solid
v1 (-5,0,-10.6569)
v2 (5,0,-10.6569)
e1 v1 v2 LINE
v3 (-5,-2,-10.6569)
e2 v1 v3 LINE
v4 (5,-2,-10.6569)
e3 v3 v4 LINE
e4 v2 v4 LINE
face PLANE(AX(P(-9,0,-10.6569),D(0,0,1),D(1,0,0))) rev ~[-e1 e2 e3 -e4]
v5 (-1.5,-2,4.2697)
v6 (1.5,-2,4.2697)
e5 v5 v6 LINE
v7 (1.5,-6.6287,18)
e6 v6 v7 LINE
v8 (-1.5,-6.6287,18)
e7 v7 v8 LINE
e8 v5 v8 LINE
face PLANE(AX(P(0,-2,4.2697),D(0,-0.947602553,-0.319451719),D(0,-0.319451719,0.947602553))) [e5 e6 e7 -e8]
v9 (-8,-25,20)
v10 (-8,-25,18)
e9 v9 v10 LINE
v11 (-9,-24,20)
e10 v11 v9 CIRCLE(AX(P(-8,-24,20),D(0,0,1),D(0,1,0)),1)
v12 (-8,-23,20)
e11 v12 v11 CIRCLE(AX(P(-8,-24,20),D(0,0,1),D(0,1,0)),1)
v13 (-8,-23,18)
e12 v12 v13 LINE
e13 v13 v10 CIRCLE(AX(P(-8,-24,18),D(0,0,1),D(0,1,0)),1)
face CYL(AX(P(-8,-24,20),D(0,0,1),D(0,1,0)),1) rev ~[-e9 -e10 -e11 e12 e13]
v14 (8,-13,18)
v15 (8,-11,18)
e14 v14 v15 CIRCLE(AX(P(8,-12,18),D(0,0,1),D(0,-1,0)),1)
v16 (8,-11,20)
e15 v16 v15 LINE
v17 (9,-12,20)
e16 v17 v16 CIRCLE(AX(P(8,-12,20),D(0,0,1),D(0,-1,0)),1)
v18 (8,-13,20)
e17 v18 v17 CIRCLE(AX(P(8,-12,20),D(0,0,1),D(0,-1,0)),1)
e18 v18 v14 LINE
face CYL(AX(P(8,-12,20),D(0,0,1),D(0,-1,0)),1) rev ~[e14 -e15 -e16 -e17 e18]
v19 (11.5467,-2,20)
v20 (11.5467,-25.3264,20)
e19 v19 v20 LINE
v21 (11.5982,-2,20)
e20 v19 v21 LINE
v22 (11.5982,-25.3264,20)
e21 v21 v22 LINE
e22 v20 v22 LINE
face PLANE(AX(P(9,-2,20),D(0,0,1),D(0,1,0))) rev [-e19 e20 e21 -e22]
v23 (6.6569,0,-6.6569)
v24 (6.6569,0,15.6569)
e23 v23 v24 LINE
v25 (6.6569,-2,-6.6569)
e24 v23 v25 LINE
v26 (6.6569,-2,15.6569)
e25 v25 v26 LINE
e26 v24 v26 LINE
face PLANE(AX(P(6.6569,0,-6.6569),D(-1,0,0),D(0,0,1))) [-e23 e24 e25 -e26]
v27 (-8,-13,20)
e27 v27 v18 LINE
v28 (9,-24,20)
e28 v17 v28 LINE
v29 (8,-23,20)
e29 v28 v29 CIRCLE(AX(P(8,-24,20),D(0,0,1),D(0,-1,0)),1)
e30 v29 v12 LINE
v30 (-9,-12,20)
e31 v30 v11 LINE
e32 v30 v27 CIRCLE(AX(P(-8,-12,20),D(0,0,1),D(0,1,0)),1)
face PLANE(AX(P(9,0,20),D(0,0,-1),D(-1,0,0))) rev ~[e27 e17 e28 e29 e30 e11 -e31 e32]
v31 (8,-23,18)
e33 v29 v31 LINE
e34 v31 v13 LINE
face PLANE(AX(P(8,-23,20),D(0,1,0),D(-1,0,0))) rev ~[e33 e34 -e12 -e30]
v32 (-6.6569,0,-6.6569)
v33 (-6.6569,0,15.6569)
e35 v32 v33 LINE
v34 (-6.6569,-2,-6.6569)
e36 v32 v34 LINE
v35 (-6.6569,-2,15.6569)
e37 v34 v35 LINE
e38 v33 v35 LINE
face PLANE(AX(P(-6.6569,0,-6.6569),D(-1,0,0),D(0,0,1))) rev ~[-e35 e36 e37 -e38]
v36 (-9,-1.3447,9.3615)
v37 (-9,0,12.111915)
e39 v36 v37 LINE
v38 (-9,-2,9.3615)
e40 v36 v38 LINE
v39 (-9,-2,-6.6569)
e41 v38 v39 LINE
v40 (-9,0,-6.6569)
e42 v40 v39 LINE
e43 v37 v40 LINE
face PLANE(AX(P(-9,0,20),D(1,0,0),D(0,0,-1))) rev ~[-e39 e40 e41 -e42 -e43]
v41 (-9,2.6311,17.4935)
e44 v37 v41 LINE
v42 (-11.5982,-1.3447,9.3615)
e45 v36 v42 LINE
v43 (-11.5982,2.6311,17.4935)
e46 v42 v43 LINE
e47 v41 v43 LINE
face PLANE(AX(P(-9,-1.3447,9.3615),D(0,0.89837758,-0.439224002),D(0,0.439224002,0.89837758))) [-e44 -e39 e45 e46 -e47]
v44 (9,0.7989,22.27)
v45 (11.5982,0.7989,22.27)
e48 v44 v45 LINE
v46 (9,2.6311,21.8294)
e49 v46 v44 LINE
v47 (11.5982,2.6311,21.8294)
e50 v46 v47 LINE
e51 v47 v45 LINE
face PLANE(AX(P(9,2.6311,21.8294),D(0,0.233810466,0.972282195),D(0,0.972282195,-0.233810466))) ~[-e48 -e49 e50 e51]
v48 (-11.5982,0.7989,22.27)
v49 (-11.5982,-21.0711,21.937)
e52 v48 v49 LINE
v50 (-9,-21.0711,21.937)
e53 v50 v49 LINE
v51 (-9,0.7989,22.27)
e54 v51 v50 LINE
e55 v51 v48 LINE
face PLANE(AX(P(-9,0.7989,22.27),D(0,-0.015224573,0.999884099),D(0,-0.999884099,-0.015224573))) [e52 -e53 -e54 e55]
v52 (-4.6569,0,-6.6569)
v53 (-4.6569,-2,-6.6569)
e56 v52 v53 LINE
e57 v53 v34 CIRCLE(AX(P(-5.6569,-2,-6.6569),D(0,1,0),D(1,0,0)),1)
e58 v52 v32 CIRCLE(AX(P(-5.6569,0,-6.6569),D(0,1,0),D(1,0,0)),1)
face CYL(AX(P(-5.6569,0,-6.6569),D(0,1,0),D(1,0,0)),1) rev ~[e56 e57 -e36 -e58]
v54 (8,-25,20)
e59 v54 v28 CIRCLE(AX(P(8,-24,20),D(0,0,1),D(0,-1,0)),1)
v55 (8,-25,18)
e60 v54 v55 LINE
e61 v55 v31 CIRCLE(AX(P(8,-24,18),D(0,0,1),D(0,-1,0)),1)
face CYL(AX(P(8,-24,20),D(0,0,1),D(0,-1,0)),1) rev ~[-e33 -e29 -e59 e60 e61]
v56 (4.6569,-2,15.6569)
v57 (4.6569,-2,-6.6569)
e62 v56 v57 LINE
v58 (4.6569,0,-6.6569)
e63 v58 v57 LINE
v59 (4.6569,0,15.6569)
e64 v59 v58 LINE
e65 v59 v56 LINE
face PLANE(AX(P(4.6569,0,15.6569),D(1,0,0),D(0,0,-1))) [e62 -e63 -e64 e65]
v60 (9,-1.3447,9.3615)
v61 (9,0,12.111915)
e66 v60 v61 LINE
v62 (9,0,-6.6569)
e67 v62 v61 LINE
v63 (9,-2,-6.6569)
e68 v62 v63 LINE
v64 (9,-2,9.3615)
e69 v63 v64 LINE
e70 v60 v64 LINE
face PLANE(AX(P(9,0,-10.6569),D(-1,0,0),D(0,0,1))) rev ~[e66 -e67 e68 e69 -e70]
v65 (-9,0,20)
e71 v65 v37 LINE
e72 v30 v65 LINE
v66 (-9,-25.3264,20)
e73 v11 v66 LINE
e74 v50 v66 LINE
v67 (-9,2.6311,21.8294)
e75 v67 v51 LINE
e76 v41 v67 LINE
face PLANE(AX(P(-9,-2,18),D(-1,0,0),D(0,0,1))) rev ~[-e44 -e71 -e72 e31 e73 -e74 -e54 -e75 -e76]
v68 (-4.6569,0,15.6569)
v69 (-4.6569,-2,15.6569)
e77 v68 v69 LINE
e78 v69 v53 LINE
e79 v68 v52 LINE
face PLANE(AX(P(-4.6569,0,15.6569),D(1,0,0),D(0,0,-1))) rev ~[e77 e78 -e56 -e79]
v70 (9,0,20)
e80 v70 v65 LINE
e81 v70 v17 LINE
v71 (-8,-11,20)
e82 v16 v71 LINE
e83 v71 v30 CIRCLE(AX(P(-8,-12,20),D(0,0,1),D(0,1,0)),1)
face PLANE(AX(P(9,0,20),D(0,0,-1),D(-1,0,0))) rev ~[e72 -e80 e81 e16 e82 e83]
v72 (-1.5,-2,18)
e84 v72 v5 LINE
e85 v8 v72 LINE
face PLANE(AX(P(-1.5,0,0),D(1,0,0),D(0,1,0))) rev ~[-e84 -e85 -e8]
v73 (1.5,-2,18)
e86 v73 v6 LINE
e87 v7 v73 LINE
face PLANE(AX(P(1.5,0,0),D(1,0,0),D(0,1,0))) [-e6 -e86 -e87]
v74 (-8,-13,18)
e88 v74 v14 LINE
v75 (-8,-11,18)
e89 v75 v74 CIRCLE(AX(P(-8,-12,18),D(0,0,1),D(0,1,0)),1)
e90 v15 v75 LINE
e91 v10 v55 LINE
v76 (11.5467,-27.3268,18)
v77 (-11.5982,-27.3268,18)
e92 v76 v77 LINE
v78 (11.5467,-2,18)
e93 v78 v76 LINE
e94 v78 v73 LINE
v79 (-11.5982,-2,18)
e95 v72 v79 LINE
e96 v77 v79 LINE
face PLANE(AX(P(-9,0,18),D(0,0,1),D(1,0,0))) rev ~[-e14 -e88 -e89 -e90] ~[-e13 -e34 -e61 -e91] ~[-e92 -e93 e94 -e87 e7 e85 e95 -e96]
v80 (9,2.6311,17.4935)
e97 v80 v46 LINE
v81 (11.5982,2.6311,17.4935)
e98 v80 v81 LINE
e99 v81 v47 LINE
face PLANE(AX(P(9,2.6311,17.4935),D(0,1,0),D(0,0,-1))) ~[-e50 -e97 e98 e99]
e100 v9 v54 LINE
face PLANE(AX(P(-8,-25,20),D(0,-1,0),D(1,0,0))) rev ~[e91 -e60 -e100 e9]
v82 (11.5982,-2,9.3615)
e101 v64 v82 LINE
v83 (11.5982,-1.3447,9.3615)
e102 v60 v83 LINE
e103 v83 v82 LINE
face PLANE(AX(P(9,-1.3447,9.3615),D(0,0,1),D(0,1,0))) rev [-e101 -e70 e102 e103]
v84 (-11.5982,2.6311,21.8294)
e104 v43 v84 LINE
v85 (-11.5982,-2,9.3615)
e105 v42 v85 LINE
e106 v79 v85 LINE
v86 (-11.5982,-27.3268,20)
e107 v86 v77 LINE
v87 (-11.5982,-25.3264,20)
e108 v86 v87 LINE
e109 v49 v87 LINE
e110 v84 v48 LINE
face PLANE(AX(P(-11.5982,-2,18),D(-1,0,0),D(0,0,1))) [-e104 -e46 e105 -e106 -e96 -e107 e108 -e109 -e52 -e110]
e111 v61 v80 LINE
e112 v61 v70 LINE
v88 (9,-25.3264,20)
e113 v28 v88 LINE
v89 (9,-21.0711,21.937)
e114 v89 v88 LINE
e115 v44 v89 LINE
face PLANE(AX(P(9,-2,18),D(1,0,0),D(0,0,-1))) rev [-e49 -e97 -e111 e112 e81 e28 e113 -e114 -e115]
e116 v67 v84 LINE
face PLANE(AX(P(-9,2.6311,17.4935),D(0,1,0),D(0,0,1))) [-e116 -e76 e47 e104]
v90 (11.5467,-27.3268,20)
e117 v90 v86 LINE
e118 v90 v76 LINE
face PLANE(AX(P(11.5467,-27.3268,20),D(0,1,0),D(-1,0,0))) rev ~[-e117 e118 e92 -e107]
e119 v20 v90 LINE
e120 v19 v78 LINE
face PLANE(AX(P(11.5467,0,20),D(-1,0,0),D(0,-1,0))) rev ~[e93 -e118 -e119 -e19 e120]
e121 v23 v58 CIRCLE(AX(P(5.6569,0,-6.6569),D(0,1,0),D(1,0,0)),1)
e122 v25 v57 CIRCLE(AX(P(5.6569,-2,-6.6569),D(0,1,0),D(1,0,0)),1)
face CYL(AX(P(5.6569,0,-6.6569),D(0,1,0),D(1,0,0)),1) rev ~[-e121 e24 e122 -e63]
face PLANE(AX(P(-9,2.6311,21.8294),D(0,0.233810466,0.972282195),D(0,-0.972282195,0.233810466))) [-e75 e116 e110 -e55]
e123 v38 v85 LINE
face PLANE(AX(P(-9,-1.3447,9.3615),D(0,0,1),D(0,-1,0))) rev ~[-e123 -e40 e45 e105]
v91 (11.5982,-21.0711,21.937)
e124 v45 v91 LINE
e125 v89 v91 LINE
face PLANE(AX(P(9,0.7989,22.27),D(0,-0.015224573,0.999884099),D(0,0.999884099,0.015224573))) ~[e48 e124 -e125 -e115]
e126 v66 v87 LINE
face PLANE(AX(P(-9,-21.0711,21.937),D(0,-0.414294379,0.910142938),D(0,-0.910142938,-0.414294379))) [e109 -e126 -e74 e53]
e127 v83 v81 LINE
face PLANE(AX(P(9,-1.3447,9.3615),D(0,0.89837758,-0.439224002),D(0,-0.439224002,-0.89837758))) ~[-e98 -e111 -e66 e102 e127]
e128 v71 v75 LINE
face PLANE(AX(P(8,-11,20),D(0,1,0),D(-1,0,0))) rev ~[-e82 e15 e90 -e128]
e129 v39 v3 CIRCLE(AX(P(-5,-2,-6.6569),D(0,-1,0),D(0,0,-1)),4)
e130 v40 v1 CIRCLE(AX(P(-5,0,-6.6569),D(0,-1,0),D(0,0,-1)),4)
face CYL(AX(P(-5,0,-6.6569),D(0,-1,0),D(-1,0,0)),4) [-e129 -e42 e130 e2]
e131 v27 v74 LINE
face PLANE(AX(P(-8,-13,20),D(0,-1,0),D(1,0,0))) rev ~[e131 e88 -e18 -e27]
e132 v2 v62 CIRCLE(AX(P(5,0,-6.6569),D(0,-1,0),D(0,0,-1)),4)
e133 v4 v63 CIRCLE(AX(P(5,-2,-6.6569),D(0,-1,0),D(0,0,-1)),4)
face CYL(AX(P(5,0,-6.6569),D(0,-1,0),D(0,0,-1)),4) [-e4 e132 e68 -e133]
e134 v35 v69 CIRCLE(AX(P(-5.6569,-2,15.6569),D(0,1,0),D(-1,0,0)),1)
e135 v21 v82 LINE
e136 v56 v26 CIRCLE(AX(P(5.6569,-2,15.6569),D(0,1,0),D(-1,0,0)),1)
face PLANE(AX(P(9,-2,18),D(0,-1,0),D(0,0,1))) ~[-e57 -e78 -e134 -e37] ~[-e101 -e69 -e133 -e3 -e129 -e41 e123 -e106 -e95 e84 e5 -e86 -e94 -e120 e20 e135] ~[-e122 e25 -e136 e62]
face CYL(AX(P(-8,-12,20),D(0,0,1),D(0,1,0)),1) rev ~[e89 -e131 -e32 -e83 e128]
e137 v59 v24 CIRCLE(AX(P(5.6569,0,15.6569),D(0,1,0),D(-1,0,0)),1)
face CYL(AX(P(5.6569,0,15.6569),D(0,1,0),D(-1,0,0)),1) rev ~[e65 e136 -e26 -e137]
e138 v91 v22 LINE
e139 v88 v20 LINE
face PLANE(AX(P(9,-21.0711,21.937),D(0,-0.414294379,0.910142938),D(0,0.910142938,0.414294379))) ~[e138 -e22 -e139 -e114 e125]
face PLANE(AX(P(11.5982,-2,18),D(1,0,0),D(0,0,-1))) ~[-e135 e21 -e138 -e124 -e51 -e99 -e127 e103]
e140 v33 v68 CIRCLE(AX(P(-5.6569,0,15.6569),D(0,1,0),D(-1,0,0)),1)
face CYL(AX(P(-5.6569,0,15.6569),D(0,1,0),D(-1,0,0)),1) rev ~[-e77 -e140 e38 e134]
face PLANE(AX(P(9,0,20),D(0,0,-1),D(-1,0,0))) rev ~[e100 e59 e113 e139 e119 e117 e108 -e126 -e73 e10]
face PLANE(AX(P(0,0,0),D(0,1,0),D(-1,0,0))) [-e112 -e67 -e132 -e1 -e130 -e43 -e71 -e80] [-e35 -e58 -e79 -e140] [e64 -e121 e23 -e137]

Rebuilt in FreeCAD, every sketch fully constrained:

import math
import FreeCAD as App
import Part
import Sketcher
from FreeCAD import Vector
Q = App.Units.Quantity


def edges_at(feature, points):
    """Names of the edges that pass closest to the given points."""
    edges = feature.Shape.Edges
    near = lambda p: min(range(len(edges)), key=lambda i: edges[i].distToShape(Part.Vertex(*p))[0])
    return sorted({f"Edge{near(p) + 1}" for p in points})


def add_polygon(sketch, points):
    """Adds a closed chain of lines whose ends are joined by coincident constraints."""
    first, n = sketch.GeometryCount, len(points)
    for a, b in zip(points, points[1:] + points[:1]):
        sketch.addGeometry(Part.LineSegment(App.Vector(*a, 0), App.Vector(*b, 0)), False)
    for i in range(n):
        sketch.addConstraint(Sketcher.Constraint("Coincident", first + i, 2, first + (i + 1) % n, 1))

doc = App.newDocument("Part")
body = doc.addObject("PartDesign::Body", "Body")

# Sketch on XZ plane
sketch1 = body.newObject("Sketcher::SketchObject", "Sketch")
sketch1.AttachmentSupport = (doc.getObject("XZ_Plane"), [""])
sketch1.MapMode = "FlatFace"
add_polygon(sketch1, [(-9, 20), (9, 20), (9, -10.7), (-9, -10.7)])  # lines 0-3
sketch1.addGeometry(Part.ArcOfCircle(Part.Circle(Vector(5.7, -6.7, 0), Vector(0, 0, 1), 1), math.radians(180), math.radians(360)), False)  # 4
sketch1.addGeometry(Part.LineSegment(Vector(6.7, -6.7, 0), Vector(6.7, 15.7, 0)), False)  # 5
sketch1.addGeometry(Part.ArcOfCircle(Part.Circle(Vector(5.7, 15.7, 0), Vector(0, 0, 1), 1), math.radians(0), math.radians(180)), False)  # 6
sketch1.addGeometry(Part.LineSegment(Vector(4.7, 15.7, 0), Vector(4.7, -6.7, 0)), False)  # 7
sketch1.addGeometry(Part.LineSegment(Vector(-6.7, 15.7, 0), Vector(-6.7, -6.7, 0)), False)  # 8
sketch1.addGeometry(Part.ArcOfCircle(Part.Circle(Vector(-5.7, -6.7, 0), Vector(0, 0, 1), 1), math.radians(180), math.radians(360)), False)  # 9
sketch1.addGeometry(Part.LineSegment(Vector(-4.7, -6.7, 0), Vector(-4.7, 15.7, 0)), False)  # 10
sketch1.addGeometry(Part.ArcOfCircle(Part.Circle(Vector(-5.7, 15.7, 0), Vector(0, 0, 1), 1), math.radians(0), math.radians(180)), False)  # 11
sketch1.addConstraint([
    Sketcher.Constraint("Tangent", 4, 2, 5, 1),
    Sketcher.Constraint("Tangent", 5, 2, 6, 1),
    Sketcher.Constraint("Tangent", 6, 2, 7, 1),
    Sketcher.Constraint("Tangent", 7, 2, 4, 1),
    Sketcher.Constraint("Tangent", 8, 2, 9, 1),
    Sketcher.Constraint("Tangent", 9, 2, 10, 1),
    Sketcher.Constraint("Tangent", 10, 2, 11, 1),
    Sketcher.Constraint("Tangent", 11, 2, 8, 1),
    Sketcher.Constraint("Horizontal", 0),
    Sketcher.Constraint("Vertical", 1),
    Sketcher.Constraint("Horizontal", 2),
    Sketcher.Constraint("Vertical", 3),
    Sketcher.Constraint("Vertical", 5),
    Sketcher.Constraint("Vertical", 7),
    Sketcher.Constraint("Vertical", 8),
    Sketcher.Constraint("Vertical", 10),
    Sketcher.Constraint("Equal", 6, 9),
    Sketcher.Constraint("Symmetric", 4, 3, 9, 3, -2),
    Sketcher.Constraint("Horizontal", 6, 3, 11, 3),
    Sketcher.Constraint("Radius", 4, 1.0),
    Sketcher.Constraint("DistanceX", 0, 1, 0, 2, 18.0),
    Sketcher.Constraint("DistanceY", -1, 1, 0, 2, 20.0),
    Sketcher.Constraint("DistanceY", 1, 2, 4, 3, 4.0),
    Sketcher.Constraint("DistanceX", -1, 1, 0, 2, 9.0),
    Sketcher.Constraint("DistanceY", 1, 2, 1, 1, 30.657),
    Sketcher.Constraint("DistanceY", 5, 1, 5, 2, 22.3138),
    Sketcher.Constraint("DistanceX", -1, 1, 4, 3, 5.657),
])
pad1 = body.newObject("PartDesign::Pad", "Pad")
pad1.Profile = sketch1
pad1.Length = 2

# Sketch on XY plane
sketch2 = body.newObject("Sketcher::SketchObject", "Sketch001")
sketch2.AttachmentSupport = (doc.getObject("XY_Plane"), [""])
sketch2.MapMode = "FlatFace"
sketch2.AttachmentOffset = App.Placement(Vector(0, 0, 20), App.Rotation())
add_polygon(sketch2, [(11.5, 0), (-11.6, 0), (-11.6, -27.3), (11.5, -27.3)])  # lines 0-3
sketch2.addGeometry(Part.LineSegment(Vector(8, -25, 0), Vector(-8, -25, 0)), False)  # 4
sketch2.addGeometry(Part.ArcOfCircle(Part.Circle(Vector(-8, -24, 0), Vector(0, 0, 1), 1), math.radians(90), math.radians(270)), False)  # 5
sketch2.addGeometry(Part.LineSegment(Vector(-8, -23, 0), Vector(8, -23, 0)), False)  # 6
sketch2.addGeometry(Part.ArcOfCircle(Part.Circle(Vector(8, -24, 0), Vector(0, 0, 1), 1), math.radians(-90), math.radians(90)), False)  # 7
sketch2.addGeometry(Part.LineSegment(Vector(8, -13, 0), Vector(-8, -13, 0)), False)  # 8
sketch2.addGeometry(Part.ArcOfCircle(Part.Circle(Vector(-8, -12, 0), Vector(0, 0, 1), 1), math.radians(90), math.radians(270)), False)  # 9
sketch2.addGeometry(Part.LineSegment(Vector(-8, -11, 0), Vector(8, -11, 0)), False)  # 10
sketch2.addGeometry(Part.ArcOfCircle(Part.Circle(Vector(8, -12, 0), Vector(0, 0, 1), 1), math.radians(-90), math.radians(90)), False)  # 11
sketch2.addConstraint([
    Sketcher.Constraint("Tangent", 4, 2, 5, 2),
    Sketcher.Constraint("Tangent", 5, 1, 6, 1),
    Sketcher.Constraint("Tangent", 6, 2, 7, 2),
    Sketcher.Constraint("Tangent", 7, 1, 4, 1),
    Sketcher.Constraint("Tangent", 8, 2, 9, 2),
    Sketcher.Constraint("Tangent", 9, 1, 10, 1),
    Sketcher.Constraint("Tangent", 10, 2, 11, 2),
    Sketcher.Constraint("Tangent", 11, 1, 8, 1),
    Sketcher.Constraint("Horizontal", 0),
    Sketcher.Constraint("Vertical", 1),
    Sketcher.Constraint("Horizontal", 2),
    Sketcher.Constraint("Vertical", 3),
    Sketcher.Constraint("Horizontal", 4),
    Sketcher.Constraint("Horizontal", 6),
    Sketcher.Constraint("Horizontal", 8),
    Sketcher.Constraint("Horizontal", 10),
    Sketcher.Constraint("Equal", 7, 9),
    Sketcher.Constraint("PointOnObject", 0, 2, -1),
    Sketcher.Constraint("Vertical", 5, 3, 9, 3),
    Sketcher.Constraint("Vertical", 7, 3, 11, 3),
    Sketcher.Constraint("Radius", 5, 1.0),
    Sketcher.Constraint("DistanceX", 5, 3, -1, 1, 8.0),
    Sketcher.Constraint("DistanceX", -1, 1, 7, 3, 8.0),
    Sketcher.Constraint("DistanceY", 9, 3, -1, 1, 12.0),
    Sketcher.Constraint("DistanceY", 5, 3, 9, 3, 12.0),
    Sketcher.Constraint("DistanceX", 0, 2, 0, 1, 23.145),
    Sketcher.Constraint("DistanceY", 1, 2, 1, 1, 27.3268),
    Sketcher.Constraint("DistanceX", 0, 2, -1, 1, 11.5982),
])
pad2 = body.newObject("PartDesign::Pad", "Pad001")
pad2.Profile = sketch2
pad2.Length = 2
pad2.Reversed = True
doc.recompute()

fillet = body.newObject("PartDesign::Fillet", "Fillet")
fillet.Base = (pad2, edges_at(pad2, [(-9, -1, -10.657), (9, -1, -10.657)]))
fillet.Radius = 4

# Sketch on YZ plane
sketch3 = body.newObject("Sketcher::SketchObject", "Sketch002")
sketch3.AttachmentSupport = (doc.getObject("YZ_Plane"), [""])
sketch3.MapMode = "FlatFace"
add_polygon(sketch3, [(-6.6, 18), (-2, 4.3), (-2, 18)])  # lines 0-2
sketch3.addConstraint([
    Sketcher.Constraint("Vertical", 1),
    Sketcher.Constraint("Horizontal", 2),
    Sketcher.Constraint("DistanceX", 0, 2, -1, 1, 2.0),
    Sketcher.Constraint("DistanceY", -1, 1, 1, 2, 18.0),
    Sketcher.Constraint("Angle", 0, Q("-71.3702 deg")),
    Sketcher.Constraint("DistanceX", 2, 2, 2, 1, 4.6287),
])
pad3 = body.newObject("PartDesign::Pad", "Pad002")
pad3.Profile = sketch3
pad3.Length = 3
pad3.Midplane = True

# Sketch on YZ plane
sketch4 = body.newObject("Sketcher::SketchObject", "Sketch003")
sketch4.AttachmentSupport = (doc.getObject("YZ_Plane"), [""])
sketch4.MapMode = "FlatFace"
sketch4.AttachmentOffset = App.Placement(Vector(0, 0, -9), App.Rotation())
add_polygon(sketch4, [(2.6, 17.5), (-1.3, 9.4), (-2, 9.4), (-2, 20), (-25.3, 20), (-21.1, 21.9), (0.8, 22.3), (2.6, 21.8)])  # lines 0-7
sketch4.addConstraint([
    Sketcher.Constraint("Horizontal", 1),
    Sketcher.Constraint("Vertical", 2),
    Sketcher.Constraint("Horizontal", 3),
    Sketcher.Constraint("Vertical", 7),
    Sketcher.Constraint("DistanceX", 1, 2, -1, 1, 2.0),
    Sketcher.Constraint("DistanceY", -1, 1, 2, 2, 20.0),
    Sketcher.Constraint("DistanceY", 7, 2, 7, 1, 4.336),
    Sketcher.Constraint("DistanceY", -1, 1, 5, 2, 22.27),
    Sketcher.Constraint("DistanceX", 4, 2, 5, 2, 21.87),
    Sketcher.Constraint("DistanceX", 1, 2, 1, 1, 0.6553),
    Sketcher.Constraint("DistanceX", 3, 2, 3, 1, 23.3264),
    Sketcher.Constraint("DistanceY", 2, 1, 2, 2, 10.6385),
    Sketcher.Constraint("DistanceX", 4, 2, -1, 1, 21.071),
    Sketcher.Constraint("DistanceY", -1, 1, 4, 2, 21.937),
    Sketcher.Constraint("DistanceX", -1, 1, 6, 2, 2.631),
    Sketcher.Constraint("DistanceY", 0, 2, 6, 2, 12.468),
])
pad4 = body.newObject("PartDesign::Pad", "Pad003")
pad4.Profile = sketch4
pad4.Length = 2.5982
pad4.Reversed = True
doc.recompute()

mirrored = body.newObject("PartDesign::Mirrored", "Mirrored")
mirrored.Originals = [pad4]
mirrored.MirrorPlane = (doc.getObject("YZ_Plane"), [""])
body.Tip = mirrored

doc.recompute()
